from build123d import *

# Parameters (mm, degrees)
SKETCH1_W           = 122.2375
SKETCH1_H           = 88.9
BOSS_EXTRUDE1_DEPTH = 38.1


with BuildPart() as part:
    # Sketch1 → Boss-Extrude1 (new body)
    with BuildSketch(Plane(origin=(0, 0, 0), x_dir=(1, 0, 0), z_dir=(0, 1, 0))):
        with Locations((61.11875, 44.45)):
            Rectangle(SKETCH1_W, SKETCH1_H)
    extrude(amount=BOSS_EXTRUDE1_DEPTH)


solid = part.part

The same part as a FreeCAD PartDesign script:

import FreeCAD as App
import Part
import Sketcher
Q = App.Units.Quantity


def add_polygon(sketch, points):
    """Adds a closed chain of lines whose ends are joined by coincident constraints."""
    first, n = sketch.GeometryCount, len(points)
    for a, b in zip(points, points[1:] + points[:1]):
        sketch.addGeometry(Part.LineSegment(App.Vector(*a, 0), App.Vector(*b, 0)), False)
    for i in range(n):
        sketch.addConstraint(Sketcher.Constraint("Coincident", first + i, 2, first + (i + 1) % n, 1))

doc = App.newDocument("Part")
body = doc.addObject("PartDesign::Body", "Body")

sketch1 = body.newObject("Sketcher::SketchObject", "Sketch")
sketch1.AttachmentSupport = (doc.getObject("XZ_Plane"), [""])
sketch1.MapMode = "FlatFace"
add_polygon(sketch1, [(0, -89), (0, 0), (122, 0), (122, -89)])
sketch1.addConstraint([
    Sketcher.Constraint("Vertical", 0),
    Sketcher.Constraint("Horizontal", 1),
    Sketcher.Constraint("Vertical", 2),
    Sketcher.Constraint("Horizontal", 3),
    Sketcher.Constraint("Coincident", 0, 2, -1, 1),
    Sketcher.Constraint("DistanceY", 0, 1, 0, 2, Q("3.5 in")),
    Sketcher.Constraint("DistanceX", 1, 1, 1, 2, Q("4.8125 in")),
])
pad1 = body.newObject("PartDesign::Pad", "Pad")
pad1.Profile = sketch1
pad1.Length = Q("1.5 in")
pad1.Reversed = True

doc.recompute()
